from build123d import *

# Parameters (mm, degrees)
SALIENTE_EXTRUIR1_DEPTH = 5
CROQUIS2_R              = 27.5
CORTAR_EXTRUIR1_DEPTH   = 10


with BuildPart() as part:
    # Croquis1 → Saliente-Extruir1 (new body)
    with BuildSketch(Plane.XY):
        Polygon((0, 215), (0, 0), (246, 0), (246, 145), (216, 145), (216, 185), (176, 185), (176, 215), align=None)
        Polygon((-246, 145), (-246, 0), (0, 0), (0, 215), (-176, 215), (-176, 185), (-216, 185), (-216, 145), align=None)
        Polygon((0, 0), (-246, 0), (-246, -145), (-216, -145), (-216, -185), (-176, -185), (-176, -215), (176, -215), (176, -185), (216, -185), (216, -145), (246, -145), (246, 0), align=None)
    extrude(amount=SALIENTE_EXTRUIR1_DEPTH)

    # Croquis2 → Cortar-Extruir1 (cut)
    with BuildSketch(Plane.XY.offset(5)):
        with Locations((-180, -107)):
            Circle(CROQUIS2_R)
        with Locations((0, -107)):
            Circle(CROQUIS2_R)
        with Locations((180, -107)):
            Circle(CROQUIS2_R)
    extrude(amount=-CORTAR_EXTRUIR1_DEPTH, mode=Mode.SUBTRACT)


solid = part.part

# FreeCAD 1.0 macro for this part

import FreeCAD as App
import Part
import Sketcher

V = App.Vector
Q = App.Units.Quantity

doc = App.newDocument("Part")
body = doc.addObject("PartDesign::Body", "Body")

sketch1 = body.newObject("Sketcher::SketchObject", "Sketch")
sketch1.AttachmentSupport = (doc.getObject("XY_Plane"), [""])
sketch1.MapMode = "FlatFace"
sketch1.addGeometry(Part.LineSegment(V(246, 145, 0), V(216, 145, 0)), False)
sketch1.addGeometry(Part.LineSegment(V(216, 145, 0), V(216, 185, 0)), False)
sketch1.addGeometry(Part.LineSegment(V(216, 185, 0), V(176, 185, 0)), False)
sketch1.addGeometry(Part.LineSegment(V(176, 185, 0), V(176, 215, 0)), False)
sketch1.addGeometry(Part.LineSegment(V(176, 215, 0), V(-176, 215, 0)), False)
sketch1.addGeometry(Part.LineSegment(V(-176, 215, 0), V(-176, 185, 0)), False)
sketch1.addGeometry(Part.LineSegment(V(-176, 185, 0), V(-216, 185, 0)), False)
sketch1.addGeometry(Part.LineSegment(V(-216, 185, 0), V(-216, 145, 0)), False)
sketch1.addGeometry(Part.LineSegment(V(-216, 145, 0), V(-246, 145, 0)), False)
sketch1.addGeometry(Part.LineSegment(V(-246, 145, 0), V(-246, -145, 0)), False)
sketch1.addGeometry(Part.LineSegment(V(-246, -145, 0), V(-216, -145, 0)), False)
sketch1.addGeometry(Part.LineSegment(V(-216, -145, 0), V(-216, -185, 0)), False)
sketch1.addGeometry(Part.LineSegment(V(-216, -185, 0), V(-176, -185, 0)), False)
sketch1.addGeometry(Part.LineSegment(V(-176, -185, 0), V(-176, -215, 0)), False)
sketch1.addGeometry(Part.LineSegment(V(-176, -215, 0), V(176, -215, 0)), False)
sketch1.addGeometry(Part.LineSegment(V(176, -215, 0), V(176, -185, 0)), False)
sketch1.addGeometry(Part.LineSegment(V(176, -185, 0), V(216, -185, 0)), False)
sketch1.addGeometry(Part.LineSegment(V(216, -185, 0), V(216, -145, 0)), False)
sketch1.addGeometry(Part.LineSegment(V(216, -145, 0), V(246, -145, 0)), False)
sketch1.addGeometry(Part.LineSegment(V(246, -145, 0), V(246, 145, 0)), False)
sketch1.addConstraint(Sketcher.Constraint("Coincident", 0, 2, 1, 1))
sketch1.addConstraint(Sketcher.Constraint("Coincident", 1, 2, 2, 1))
sketch1.addConstraint(Sketcher.Constraint("Coincident", 2, 2, 3, 1))
sketch1.addConstraint(Sketcher.Constraint("Coincident", 3, 2, 4, 1))
sketch1.addConstraint(Sketcher.Constraint("Coincident", 4, 2, 5, 1))
sketch1.addConstraint(Sketcher.Constraint("Coincident", 5, 2, 6, 1))
sketch1.addConstraint(Sketcher.Constraint("Coincident", 6, 2, 7, 1))
sketch1.addConstraint(Sketcher.Constraint("Coincident", 7, 2, 8, 1))
sketch1.addConstraint(Sketcher.Constraint("Coincident", 8, 2, 9, 1))
sketch1.addConstraint(Sketcher.Constraint("Coincident", 9, 2, 10, 1))
sketch1.addConstraint(Sketcher.Constraint("Coincident", 10, 2, 11, 1))
sketch1.addConstraint(Sketcher.Constraint("Coincident", 11, 2, 12, 1))
sketch1.addConstraint(Sketcher.Constraint("Coincident", 12, 2, 13, 1))
sketch1.addConstraint(Sketcher.Constraint("Coincident", 13, 2, 14, 1))
sketch1.addConstraint(Sketcher.Constraint("Coincident", 14, 2, 15, 1))
sketch1.addConstraint(Sketcher.Constraint("Coincident", 15, 2, 16, 1))
sketch1.addConstraint(Sketcher.Constraint("Coincident", 16, 2, 17, 1))
sketch1.addConstraint(Sketcher.Constraint("Coincident", 17, 2, 18, 1))
sketch1.addConstraint(Sketcher.Constraint("Coincident", 18, 2, 19, 1))
sketch1.addConstraint(Sketcher.Constraint("Coincident", 19, 2, 0, 1))
sketch1.addConstraint(Sketcher.Constraint("Horizontal", 0))
sketch1.addConstraint(Sketcher.Constraint("Vertical", 1))
sketch1.addConstraint(Sketcher.Constraint("Horizontal", 2))
sketch1.addConstraint(Sketcher.Constraint("Vertical", 3))
sketch1.addConstraint(Sketcher.Constraint("Horizontal", 4))
sketch1.addConstraint(Sketcher.Constraint("Vertical", 5))
sketch1.addConstraint(Sketcher.Constraint("Horizontal", 6))
sketch1.addConstraint(Sketcher.Constraint("Vertical", 7))
sketch1.addConstraint(Sketcher.Constraint("Horizontal", 8))
sketch1.addConstraint(Sketcher.Constraint("Vertical", 9))
sketch1.addConstraint(Sketcher.Constraint("Horizontal", 10))
sketch1.addConstraint(Sketcher.Constraint("Vertical", 11))
sketch1.addConstraint(Sketcher.Constraint("Horizontal", 12))
sketch1.addConstraint(Sketcher.Constraint("Vertical", 13))
sketch1.addConstraint(Sketcher.Constraint("Horizontal", 14))
sketch1.addConstraint(Sketcher.Constraint("Vertical", 15))
sketch1.addConstraint(Sketcher.Constraint("Horizontal", 16))
sketch1.addConstraint(Sketcher.Constraint("Vertical", 17))
sketch1.addConstraint(Sketcher.Constraint("Horizontal", 18))
sketch1.addConstraint(Sketcher.Constraint("Vertical", 19))
sketch1.addConstraint(Sketcher.Constraint("Symmetric", 0, 2, 10, 2, -1, 1))
sketch1.addConstraint(Sketcher.Constraint("Symmetric", 2, 2, 12, 2, -1, 1))
sketch1.addConstraint(Sketcher.Constraint("Symmetric", 4, 2, 14, 2, -1, 1))
sketch1.addConstraint(Sketcher.Constraint("Symmetric", 6, 2, 16, 2, -1, 1))
sketch1.addConstraint(Sketcher.Constraint("Symmetric", 8, 2, 18, 2, -1, 1))
sketch1.addConstraint(Sketcher.Constraint("Symmetric", 2, 2, 5, 2, -2))
sketch1.addConstraint(Sketcher.Constraint("Symmetric", 0, 2, 7, 2, -2))
sketch1.addConstraint(Sketcher.Constraint("Equal", 16, 1))
sketch1.addConstraint(Sketcher.Constraint("Equal", 18, 3))
sketch1.addConstraint(Sketcher.Constraint("DistanceX", 0, 2, 0, 1, Q("30 mm")))
sketch1.addConstraint(Sketcher.Constraint("DistanceX", 2, 2, 2, 1, Q("40 mm")))
sketch1.addConstraint(Sketcher.Constraint("DistanceX", 4, 2, 4, 1, Q("352 mm")))
sketch1.addConstraint(Sketcher.Constraint("DistanceY", 9, 2, 9, 1, Q("290 mm")))
pad1 = body.newObject("PartDesign::Pad", "Pad")
pad1.Profile = sketch1
pad1.Length = 5

sketch2 = body.newObject("Sketcher::SketchObject", "Sketch001")
sketch2.AttachmentSupport = (doc.getObject("XY_Plane"), [""])
sketch2.MapMode = "FlatFace"
sketch2.AttachmentOffset = App.Placement(V(0, 0, 5), App.Rotation())
sketch2.addGeometry(Part.Circle(V(-180, -107, 0), V(0, 0, 1), 27.5), False)
sketch2.addGeometry(Part.Circle(V(0, -107, 0), V(0, 0, 1), 27.5), False)
sketch2.addGeometry(Part.Circle(V(180, -107, 0), V(0, 0, 1), 27.5), False)
sketch2.addConstraint(Sketcher.Constraint("Equal", 0, 1))
sketch2.addConstraint(Sketcher.Constraint("Equal", 1, 2))
sketch2.addConstraint(Sketcher.Constraint("Symmetric", 0, 3, 2, 3, -2))
sketch2.addConstraint(Sketcher.Constraint("PointOnObject", 1, 3, -2))
sketch2.addConstraint(Sketcher.Constraint("Horizontal", 0, 3, 1, 3))
sketch2.addConstraint(Sketcher.Constraint("Diameter", 0, Q("55 mm")))
sketch2.addConstraint(Sketcher.Constraint("DistanceX", 0, 3, -1, 1, Q("180 mm")))
sketch2.addConstraint(Sketcher.Constraint("DistanceY", 0, 3, -1, 1, Q("107 mm")))
pocket1 = body.newObject("PartDesign::Pocket", "Pocket")
pocket1.Profile = sketch2
pocket1.Length = 10

doc.recompute()
